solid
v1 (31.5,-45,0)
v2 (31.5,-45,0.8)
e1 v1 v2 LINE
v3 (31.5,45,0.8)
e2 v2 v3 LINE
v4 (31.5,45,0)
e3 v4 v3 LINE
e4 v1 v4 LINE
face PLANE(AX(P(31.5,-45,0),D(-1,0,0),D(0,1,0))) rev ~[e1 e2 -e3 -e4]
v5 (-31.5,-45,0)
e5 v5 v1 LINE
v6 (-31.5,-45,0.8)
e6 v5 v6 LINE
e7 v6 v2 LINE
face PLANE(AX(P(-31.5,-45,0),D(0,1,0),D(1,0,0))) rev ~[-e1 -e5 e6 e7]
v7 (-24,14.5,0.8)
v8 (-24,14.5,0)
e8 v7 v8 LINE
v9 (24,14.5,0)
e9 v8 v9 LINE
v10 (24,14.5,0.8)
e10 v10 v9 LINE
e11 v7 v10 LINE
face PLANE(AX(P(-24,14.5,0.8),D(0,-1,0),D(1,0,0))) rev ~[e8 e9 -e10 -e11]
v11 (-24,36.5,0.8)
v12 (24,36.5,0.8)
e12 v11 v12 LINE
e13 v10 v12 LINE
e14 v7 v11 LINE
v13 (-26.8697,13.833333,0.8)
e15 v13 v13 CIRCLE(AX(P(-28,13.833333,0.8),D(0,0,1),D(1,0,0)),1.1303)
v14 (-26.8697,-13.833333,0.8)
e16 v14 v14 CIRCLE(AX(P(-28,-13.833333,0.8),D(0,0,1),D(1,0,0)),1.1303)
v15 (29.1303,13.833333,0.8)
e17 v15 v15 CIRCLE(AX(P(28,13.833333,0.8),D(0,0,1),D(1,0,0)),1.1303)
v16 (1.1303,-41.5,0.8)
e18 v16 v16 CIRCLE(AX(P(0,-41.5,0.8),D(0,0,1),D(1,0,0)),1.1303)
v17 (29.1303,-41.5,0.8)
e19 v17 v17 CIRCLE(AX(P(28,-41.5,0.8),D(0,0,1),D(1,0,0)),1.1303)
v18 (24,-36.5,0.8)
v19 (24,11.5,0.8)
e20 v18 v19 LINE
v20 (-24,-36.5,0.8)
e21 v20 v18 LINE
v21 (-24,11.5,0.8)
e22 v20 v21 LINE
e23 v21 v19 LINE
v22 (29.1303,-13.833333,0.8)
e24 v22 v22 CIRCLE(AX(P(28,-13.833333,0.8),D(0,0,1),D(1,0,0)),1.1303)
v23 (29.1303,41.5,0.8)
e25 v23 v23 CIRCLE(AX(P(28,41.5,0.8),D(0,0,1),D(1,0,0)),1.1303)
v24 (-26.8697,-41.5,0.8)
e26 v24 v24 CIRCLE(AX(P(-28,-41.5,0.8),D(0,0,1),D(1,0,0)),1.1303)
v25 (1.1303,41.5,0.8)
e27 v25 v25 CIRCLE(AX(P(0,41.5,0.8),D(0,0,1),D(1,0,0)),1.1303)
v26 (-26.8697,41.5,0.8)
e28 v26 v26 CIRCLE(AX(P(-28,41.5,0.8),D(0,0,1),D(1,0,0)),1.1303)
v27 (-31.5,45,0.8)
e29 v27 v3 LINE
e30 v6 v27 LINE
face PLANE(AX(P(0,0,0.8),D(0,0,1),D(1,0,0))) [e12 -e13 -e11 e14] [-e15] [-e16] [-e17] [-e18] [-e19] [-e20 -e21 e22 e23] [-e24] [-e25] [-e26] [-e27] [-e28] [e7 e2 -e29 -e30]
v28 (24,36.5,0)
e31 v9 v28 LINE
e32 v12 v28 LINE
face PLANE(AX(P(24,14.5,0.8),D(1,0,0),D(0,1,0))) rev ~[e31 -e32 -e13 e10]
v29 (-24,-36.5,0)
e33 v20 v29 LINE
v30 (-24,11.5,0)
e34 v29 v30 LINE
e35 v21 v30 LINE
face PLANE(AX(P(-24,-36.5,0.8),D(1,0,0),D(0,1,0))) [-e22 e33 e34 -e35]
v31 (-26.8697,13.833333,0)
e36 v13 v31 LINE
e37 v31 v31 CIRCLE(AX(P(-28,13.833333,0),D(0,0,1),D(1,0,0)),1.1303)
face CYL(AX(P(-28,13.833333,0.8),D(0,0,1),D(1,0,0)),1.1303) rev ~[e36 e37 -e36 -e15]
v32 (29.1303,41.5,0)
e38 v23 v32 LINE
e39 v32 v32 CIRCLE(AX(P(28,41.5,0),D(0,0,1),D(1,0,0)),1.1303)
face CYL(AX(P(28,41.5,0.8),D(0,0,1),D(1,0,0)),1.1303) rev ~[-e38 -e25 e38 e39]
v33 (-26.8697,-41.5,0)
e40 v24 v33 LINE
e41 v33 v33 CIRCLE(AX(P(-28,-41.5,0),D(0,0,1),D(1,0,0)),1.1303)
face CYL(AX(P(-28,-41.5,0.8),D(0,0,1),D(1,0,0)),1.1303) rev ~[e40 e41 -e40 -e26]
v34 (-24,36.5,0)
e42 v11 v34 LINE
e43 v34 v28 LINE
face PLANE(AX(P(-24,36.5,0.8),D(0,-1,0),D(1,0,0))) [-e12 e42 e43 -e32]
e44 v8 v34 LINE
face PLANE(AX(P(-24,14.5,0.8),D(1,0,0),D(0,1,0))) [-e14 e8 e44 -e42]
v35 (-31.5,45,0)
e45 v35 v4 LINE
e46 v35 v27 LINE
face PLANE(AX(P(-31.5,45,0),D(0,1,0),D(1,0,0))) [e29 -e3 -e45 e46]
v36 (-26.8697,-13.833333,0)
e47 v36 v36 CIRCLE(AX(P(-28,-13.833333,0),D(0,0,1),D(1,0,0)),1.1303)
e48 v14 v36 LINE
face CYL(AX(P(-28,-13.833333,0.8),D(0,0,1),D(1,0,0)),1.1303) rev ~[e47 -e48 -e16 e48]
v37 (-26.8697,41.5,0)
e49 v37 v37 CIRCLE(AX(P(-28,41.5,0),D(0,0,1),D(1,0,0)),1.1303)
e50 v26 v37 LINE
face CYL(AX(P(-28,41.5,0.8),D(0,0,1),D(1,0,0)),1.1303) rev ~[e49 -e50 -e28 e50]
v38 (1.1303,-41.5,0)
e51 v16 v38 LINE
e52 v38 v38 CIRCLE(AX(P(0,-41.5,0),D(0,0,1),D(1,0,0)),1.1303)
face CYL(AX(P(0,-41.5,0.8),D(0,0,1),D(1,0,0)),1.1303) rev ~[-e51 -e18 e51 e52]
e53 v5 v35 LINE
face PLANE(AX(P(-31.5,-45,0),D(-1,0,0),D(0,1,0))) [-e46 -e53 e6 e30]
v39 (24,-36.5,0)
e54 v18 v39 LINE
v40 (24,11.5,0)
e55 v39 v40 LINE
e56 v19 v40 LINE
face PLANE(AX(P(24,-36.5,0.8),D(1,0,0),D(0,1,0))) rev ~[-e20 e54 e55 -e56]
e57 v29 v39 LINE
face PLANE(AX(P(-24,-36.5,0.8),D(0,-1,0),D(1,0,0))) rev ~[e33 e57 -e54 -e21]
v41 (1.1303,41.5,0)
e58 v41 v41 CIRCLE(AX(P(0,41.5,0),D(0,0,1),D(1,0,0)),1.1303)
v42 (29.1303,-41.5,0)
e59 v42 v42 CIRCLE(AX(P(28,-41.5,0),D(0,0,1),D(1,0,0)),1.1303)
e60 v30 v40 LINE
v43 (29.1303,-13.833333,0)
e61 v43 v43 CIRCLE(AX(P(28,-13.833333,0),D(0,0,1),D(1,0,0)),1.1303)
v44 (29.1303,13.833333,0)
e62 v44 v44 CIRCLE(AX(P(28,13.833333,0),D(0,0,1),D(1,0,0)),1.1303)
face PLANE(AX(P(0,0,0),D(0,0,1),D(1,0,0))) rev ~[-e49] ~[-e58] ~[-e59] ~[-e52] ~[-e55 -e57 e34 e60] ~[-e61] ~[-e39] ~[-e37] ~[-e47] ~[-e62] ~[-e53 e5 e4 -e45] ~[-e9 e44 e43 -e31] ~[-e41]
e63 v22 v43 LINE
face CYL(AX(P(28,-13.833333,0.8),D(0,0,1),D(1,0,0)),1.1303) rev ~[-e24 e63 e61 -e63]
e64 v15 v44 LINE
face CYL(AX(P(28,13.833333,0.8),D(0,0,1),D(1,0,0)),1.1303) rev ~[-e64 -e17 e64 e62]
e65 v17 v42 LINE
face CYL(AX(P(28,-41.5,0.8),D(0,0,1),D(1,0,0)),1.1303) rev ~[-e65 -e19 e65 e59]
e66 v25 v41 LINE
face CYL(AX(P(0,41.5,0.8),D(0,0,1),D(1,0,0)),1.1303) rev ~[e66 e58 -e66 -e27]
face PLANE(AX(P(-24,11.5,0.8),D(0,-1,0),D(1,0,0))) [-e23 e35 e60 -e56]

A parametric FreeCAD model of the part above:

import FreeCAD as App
import Part
import Sketcher
from FreeCAD import Vector


def add_polygon(sketch, points):
    """Adds a closed chain of lines whose ends are joined by coincident constraints."""
    first, n = sketch.GeometryCount, len(points)
    for a, b in zip(points, points[1:] + points[:1]):
        sketch.addGeometry(Part.LineSegment(App.Vector(*a, 0), App.Vector(*b, 0)), False)
    for i in range(n):
        sketch.addConstraint(Sketcher.Constraint("Coincident", first + i, 2, first + (i + 1) % n, 1))

doc = App.newDocument("Part")
params = doc.addObject("Spreadsheet::Sheet", "Params")
for row, (alias, value) in enumerate([
    ("sketch1_width", "63 mm"),
    ("sketch1_height", "90 mm"),
    ("pad1_length", "0.8 mm"),
    ("pocket1_length", "25 mm"),
    ("sketch3_width", "48 mm"),
    ("sketch3_height", "22 mm"),
    ("pocket2_length", "25 mm"),
], start=1):
    params.set(f"A{row}", alias)
    params.set(f"B{row}", "=" + value)
    params.setAlias(f"B{row}", alias)

body = doc.addObject("PartDesign::Body", "Body")

# Sketch on XY plane
sketch1 = body.newObject("Sketcher::SketchObject", "Sketch")
sketch1.AttachmentSupport = (doc.getObject("XY_Plane"), [""])
sketch1.MapMode = "FlatFace"
add_polygon(sketch1, [(-32, 45), (-32, -45), (32, -45), (32, 45)])  # lines 0-3
sketch1.addConstraint(Sketcher.Constraint("Vertical", 0))
sketch1.addConstraint(Sketcher.Constraint("Horizontal", 1))
sketch1.addConstraint(Sketcher.Constraint("Vertical", 2))
sketch1.addConstraint(Sketcher.Constraint("Horizontal", 3))
sketch1.addConstraint(Sketcher.Constraint("Symmetric", 0, 2, 2, 2, -1, 1))
sketch1.addConstraint(Sketcher.Constraint("DistanceX", 1, 1, 1, 2, 63.0))
sketch1.addConstraint(Sketcher.Constraint("DistanceY", 0, 2, 0, 1, 90.0))
sketch1.setExpression("Constraints[9]", "Params.sketch1_width")
sketch1.setExpression("Constraints[10]", "Params.sketch1_height")
pad1 = body.newObject("PartDesign::Pad", "Pad")
pad1.Profile = sketch1
pad1.setExpression("Length", "Params.pad1_length")

# Sketch on XY plane
sketch2 = body.newObject("Sketcher::SketchObject", "Sketch001")
sketch2.AttachmentSupport = (doc.getObject("XY_Plane"), [""])
sketch2.MapMode = "FlatFace"
sketch2.AttachmentOffset = App.Placement(Vector(0, 0, 0.8), App.Rotation())
sketch2.addGeometry(Part.Circle(Vector(-28, 41.5, 0), Vector(0, 0, 1), 1.1), False)
sketch2.addGeometry(Part.Circle(Vector(-28, -41.5, 0), Vector(0, 0, 1), 1.1), False)
sketch2.addGeometry(Part.Circle(Vector(28, -41.5, 0), Vector(0, 0, 1), 1.1), False)
sketch2.addGeometry(Part.Circle(Vector(28, 41.5, 0), Vector(0, 0, 1), 1.1), False)
sketch2.addGeometry(Part.Circle(Vector(0, 41.5, 0), Vector(0, 0, 1), 1.1), False)
sketch2.addGeometry(Part.Circle(Vector(0, -41.5, 0), Vector(0, 0, 1), 1.1), False)
sketch2.addGeometry(Part.Circle(Vector(-28, 13.8, 0), Vector(0, 0, 1), 1.1), False)
sketch2.addGeometry(Part.Circle(Vector(-28, -13.8, 0), Vector(0, 0, 1), 1.1), False)
sketch2.addGeometry(Part.Circle(Vector(28, 13.8, 0), Vector(0, 0, 1), 1.1), False)
sketch2.addGeometry(Part.Circle(Vector(28, -13.8, 0), Vector(0, 0, 1), 1.1), False)
sketch2.addConstraint(Sketcher.Constraint("Equal", 0, 1))
sketch2.addConstraint(Sketcher.Constraint("Equal", 1, 2))
sketch2.addConstraint(Sketcher.Constraint("Equal", 2, 3))
sketch2.addConstraint(Sketcher.Constraint("Equal", 3, 4))
sketch2.addConstraint(Sketcher.Constraint("Equal", 4, 5))
sketch2.addConstraint(Sketcher.Constraint("Equal", 5, 6))
sketch2.addConstraint(Sketcher.Constraint("Equal", 6, 7))
sketch2.addConstraint(Sketcher.Constraint("Equal", 7, 8))
sketch2.addConstraint(Sketcher.Constraint("Equal", 8, 9))
sketch2.addConstraint(Sketcher.Constraint("Symmetric", 0, 3, 2, 3, -1, 1))
sketch2.addConstraint(Sketcher.Constraint("Symmetric", 1, 3, 3, 3, -1, 1))
sketch2.addConstraint(Sketcher.Constraint("Symmetric", 4, 3, 5, 3, -1, 1))
sketch2.addConstraint(Sketcher.Constraint("Symmetric", 7, 3, 8, 3, -1, 1))
sketch2.addConstraint(Sketcher.Constraint("Symmetric", 6, 3, 9, 3, -1, 1))
sketch2.addConstraint(Sketcher.Constraint("Symmetric", 1, 3, 2, 3, -2))
sketch2.addConstraint(Sketcher.Constraint("Symmetric", 6, 3, 8, 3, -2))
sketch2.addConstraint(Sketcher.Constraint("PointOnObject", 4, 3, -2))
sketch2.addConstraint(Sketcher.Constraint("Horizontal", 3, 3, 4, 3))
sketch2.addConstraint(Sketcher.Constraint("Vertical", 1, 3, 6, 3))
sketch2.addConstraint(Sketcher.Constraint("DistanceX", 0, 3, -1, 1, 28.0))
sketch2.addConstraint(Sketcher.Constraint("DistanceY", 1, 3, 0, 3, 83.0))
sketch2.addConstraint(Sketcher.Constraint("Diameter", 0, 2.2606))
sketch2.addConstraint(Sketcher.Constraint("DistanceY", -1, 1, 6, 3, 13.833333))
pocket1 = body.newObject("PartDesign::Pocket", "Pocket")
pocket1.Profile = sketch2
pocket1.setExpression("Length", "Params.pocket1_length")

# Sketch on XY plane
sketch3 = body.newObject("Sketcher::SketchObject", "Sketch002")
sketch3.AttachmentSupport = (doc.getObject("XY_Plane"), [""])
sketch3.MapMode = "FlatFace"
sketch3.AttachmentOffset = App.Placement(Vector(0, 0, 0.8), App.Rotation())
add_polygon(sketch3, [(-24, 36), (-24, 14), (24, 14), (24, 36)])  # lines 0-3
add_polygon(sketch3, [(-24, 12), (-24, -36), (24, -36), (24, 12)])  # lines 4-7
sketch3.addConstraint(Sketcher.Constraint("Vertical", 0))
sketch3.addConstraint(Sketcher.Constraint("Horizontal", 1))
sketch3.addConstraint(Sketcher.Constraint("Vertical", 2))
sketch3.addConstraint(Sketcher.Constraint("Horizontal", 3))
sketch3.addConstraint(Sketcher.Constraint("Vertical", 4))
sketch3.addConstraint(Sketcher.Constraint("Horizontal", 5))
sketch3.addConstraint(Sketcher.Constraint("Vertical", 6))
sketch3.addConstraint(Sketcher.Constraint("Horizontal", 7))
sketch3.addConstraint(Sketcher.Constraint("Symmetric", 2, 2, 4, 2, -1, 1))
sketch3.addConstraint(Sketcher.Constraint("Vertical", 3, 2, 4, 2))
sketch3.addConstraint(Sketcher.Constraint("Vertical", 2, 2, 5, 2))
sketch3.addConstraint(Sketcher.Constraint("Equal", 7, 4))
sketch3.addConstraint(Sketcher.Constraint("DistanceX", 1, 1, 1, 2, 48.0))
sketch3.addConstraint(Sketcher.Constraint("DistanceY", 0, 2, 0, 1, 22.0))
sketch3.addConstraint(Sketcher.Constraint("DistanceY", 4, 2, 0, 2, 51.0))
sketch3.setExpression("Constraints[20]", "Params.sketch3_width")
sketch3.setExpression("Constraints[21]", "Params.sketch3_height")
pocket2 = body.newObject("PartDesign::Pocket", "Pocket001")
pocket2.Profile = sketch3
pocket2.setExpression("Length", "Params.pocket2_length")

doc.recompute()
